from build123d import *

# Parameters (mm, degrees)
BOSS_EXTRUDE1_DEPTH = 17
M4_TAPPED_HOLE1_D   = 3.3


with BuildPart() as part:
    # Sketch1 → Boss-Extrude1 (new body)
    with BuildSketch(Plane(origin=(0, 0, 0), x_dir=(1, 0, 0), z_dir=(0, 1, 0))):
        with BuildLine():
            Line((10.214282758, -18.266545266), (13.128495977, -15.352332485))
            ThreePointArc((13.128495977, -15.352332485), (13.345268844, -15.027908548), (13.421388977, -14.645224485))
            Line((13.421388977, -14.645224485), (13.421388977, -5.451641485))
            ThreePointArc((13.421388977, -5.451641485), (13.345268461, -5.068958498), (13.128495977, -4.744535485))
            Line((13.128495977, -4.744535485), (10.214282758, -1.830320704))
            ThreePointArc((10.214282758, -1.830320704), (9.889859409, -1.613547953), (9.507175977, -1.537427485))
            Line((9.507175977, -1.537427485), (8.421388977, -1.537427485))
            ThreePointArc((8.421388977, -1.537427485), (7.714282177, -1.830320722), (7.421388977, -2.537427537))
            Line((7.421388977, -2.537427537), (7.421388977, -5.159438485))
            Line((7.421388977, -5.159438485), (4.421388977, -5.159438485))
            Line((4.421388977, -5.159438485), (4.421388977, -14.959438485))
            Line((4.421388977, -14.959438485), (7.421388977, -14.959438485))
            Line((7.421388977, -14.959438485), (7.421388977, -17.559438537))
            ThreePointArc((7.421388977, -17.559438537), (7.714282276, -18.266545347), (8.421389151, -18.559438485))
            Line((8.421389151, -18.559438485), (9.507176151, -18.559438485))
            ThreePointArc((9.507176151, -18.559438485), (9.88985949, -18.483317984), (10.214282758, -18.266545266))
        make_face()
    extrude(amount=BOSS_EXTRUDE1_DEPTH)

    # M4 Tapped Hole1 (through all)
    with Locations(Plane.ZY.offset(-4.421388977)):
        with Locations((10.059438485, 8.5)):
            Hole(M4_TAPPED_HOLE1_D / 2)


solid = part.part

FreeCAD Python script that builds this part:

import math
import FreeCAD as App
import Part
import Sketcher
from FreeCAD import Vector

doc = App.newDocument("Part")
body = doc.addObject("PartDesign::Body", "Body")

# Sketch on XZ plane
sketch1 = doc.addObject("Sketcher::SketchObject", "Sketch")
body.addObject(sketch1)
sketch1.AttachmentSupport = (doc.XZ_Plane, [""])
sketch1.MapMode = "FlatFace"
sketch1.addGeometry(Part.LineSegment(Vector(10.2, 18.3, 0), Vector(13.1, 15.4, 0)), False)
sketch1.addGeometry(Part.ArcOfCircle(Part.Circle(Vector(12.4, 14.6, 0), Vector(0, 0, 1), 1), math.radians(0), math.radians(45)), False)
sketch1.addGeometry(Part.LineSegment(Vector(13.4, 14.6, 0), Vector(13.4, 5.5, 0)), False)
sketch1.addGeometry(Part.ArcOfCircle(Part.Circle(Vector(12.4, 5.5, 0), Vector(0, 0, 1), 1), math.radians(-45), math.radians(0)), False)
sketch1.addGeometry(Part.LineSegment(Vector(13.1, 4.7, 0), Vector(10.2, 1.8, 0)), False)
sketch1.addGeometry(Part.ArcOfCircle(Part.Circle(Vector(9.5, 2.5, 0), Vector(0, 0, 1), 1), math.radians(-90), math.radians(-45)), False)
sketch1.addGeometry(Part.LineSegment(Vector(9.5, 1.5, 0), Vector(8.4, 1.5, 0)), False)
sketch1.addGeometry(Part.ArcOfCircle(Part.Circle(Vector(8.4, 2.5, 0), Vector(0, 0, 1), 1), math.radians(180), math.radians(270)), False)
sketch1.addGeometry(Part.LineSegment(Vector(7.4, 2.5, 0), Vector(7.4, 5.2, 0)), False)
sketch1.addGeometry(Part.LineSegment(Vector(7.4, 5.2, 0), Vector(4.4, 5.2, 0)), False)
sketch1.addGeometry(Part.LineSegment(Vector(4.4, 5.2, 0), Vector(4.4, 15, 0)), False)
sketch1.addGeometry(Part.LineSegment(Vector(4.4, 15, 0), Vector(7.4, 15, 0)), False)
sketch1.addGeometry(Part.LineSegment(Vector(7.4, 15, 0), Vector(7.4, 17.6, 0)), False)
sketch1.addGeometry(Part.ArcOfCircle(Part.Circle(Vector(8.4, 17.6, 0), Vector(0, 0, 1), 1), math.radians(90), math.radians(180)), False)
sketch1.addGeometry(Part.LineSegment(Vector(8.4, 18.6, 0), Vector(9.5, 18.6, 0)), False)
sketch1.addGeometry(Part.ArcOfCircle(Part.Circle(Vector(9.5, 17.6, 0), Vector(0, 0, 1), 1), math.radians(45), math.radians(90)), False)
sketch1.addConstraint(Sketcher.Constraint("Tangent", 0, 2, 1, 2))
sketch1.addConstraint(Sketcher.Constraint("Tangent", 1, 1, 2, 1))
sketch1.addConstraint(Sketcher.Constraint("Tangent", 2, 2, 3, 2))
sketch1.addConstraint(Sketcher.Constraint("Tangent", 3, 1, 4, 1))
sketch1.addConstraint(Sketcher.Constraint("Tangent", 4, 2, 5, 2))
sketch1.addConstraint(Sketcher.Constraint("Tangent", 5, 1, 6, 1))
sketch1.addConstraint(Sketcher.Constraint("Tangent", 6, 2, 7, 2))
sketch1.addConstraint(Sketcher.Constraint("Tangent", 7, 1, 8, 1))
sketch1.addConstraint(Sketcher.Constraint("Coincident", 8, 2, 9, 1))
sketch1.addConstraint(Sketcher.Constraint("Coincident", 9, 2, 10, 1))
sketch1.addConstraint(Sketcher.Constraint("Coincident", 10, 2, 11, 1))
sketch1.addConstraint(Sketcher.Constraint("Coincident", 11, 2, 12, 1))
sketch1.addConstraint(Sketcher.Constraint("Tangent", 12, 2, 13, 2))
sketch1.addConstraint(Sketcher.Constraint("Tangent", 13, 1, 14, 1))
sketch1.addConstraint(Sketcher.Constraint("Tangent", 14, 2, 15, 2))
sketch1.addConstraint(Sketcher.Constraint("Tangent", 15, 1, 0, 1))
sketch1.addConstraint(Sketcher.Constraint("Vertical", 2))
sketch1.addConstraint(Sketcher.Constraint("Horizontal", 6))
sketch1.addConstraint(Sketcher.Constraint("Vertical", 8))
sketch1.addConstraint(Sketcher.Constraint("Horizontal", 9))
sketch1.addConstraint(Sketcher.Constraint("Vertical", 10))
sketch1.addConstraint(Sketcher.Constraint("Horizontal", 11))
sketch1.addConstraint(Sketcher.Constraint("Vertical", 12))
sketch1.addConstraint(Sketcher.Constraint("Horizontal", 14))
sketch1.addConstraint(Sketcher.Constraint("Equal", 1, 3))
sketch1.addConstraint(Sketcher.Constraint("Equal", 3, 5))
sketch1.addConstraint(Sketcher.Constraint("Equal", 5, 7))
sketch1.addConstraint(Sketcher.Constraint("Equal", 7, 13))
sketch1.addConstraint(Sketcher.Constraint("Equal", 13, 15))
sketch1.addConstraint(Sketcher.Constraint("Perpendicular", 0, 4))
sketch1.addConstraint(Sketcher.Constraint("Vertical", 7, 3, 13, 3))
sketch1.addConstraint(Sketcher.Constraint("Vertical", 5, 3, 15, 3))
sketch1.addConstraint(Sketcher.Constraint("Vertical", 0, 2, 3, 1))
sketch1.addConstraint(Sketcher.Constraint("Radius", 1, 1.0))
sketch1.addConstraint(Sketcher.Constraint("DistanceX", 9, 2, 9, 1, 3.0))
sketch1.addConstraint(Sketcher.Constraint("DistanceY", 10, 1, 10, 2, 9.8))
sketch1.addConstraint(Sketcher.Constraint("DistanceY", 12, 1, 12, 2, 2.6))
sketch1.addConstraint(Sketcher.Constraint("DistanceX", 7, 3, 3, 3, 4.0))
sketch1.addConstraint(Sketcher.Constraint("DistanceY", 8, 1, 8, 2, 2.622011))
sketch1.addConstraint(Sketcher.Constraint("DistanceY", 5, 3, 1, 3, 12.107798))
sketch1.addConstraint(Sketcher.Constraint("DistanceX", -1, 1, 1, 3, 12.421389))
sketch1.addConstraint(Sketcher.Constraint("DistanceY", -1, 1, 13, 3, 17.559438))
pad1 = doc.addObject("PartDesign::Pad", "Pad")
body.addObject(pad1)
pad1.Profile = sketch1
pad1.Length = 17
pad1.Reversed = True

# Sketch on YZ plane
sketch2 = doc.addObject("Sketcher::SketchObject", "Sketch001")
body.addObject(sketch2)
sketch2.AttachmentSupport = (doc.YZ_Plane, [""])
sketch2.MapMode = "FlatFace"
sketch2.AttachmentOffset = App.Placement(Vector(0, 0, 4.421389), App.Rotation())
sketch2.addGeometry(Part.Circle(Vector(8.5, 10.1, 0), Vector(0, 0, 1), 1.6), False)
sketch2.addConstraint(Sketcher.Constraint("Diameter", 0, 3.3))
sketch2.addConstraint(Sketcher.Constraint("DistanceX", -1, 1, 0, 3, 8.5))
sketch2.addConstraint(Sketcher.Constraint("DistanceY", -1, 1, 0, 3, 10.059438))
doc.recompute()
hole = doc.addObject("PartDesign::Hole", "Hole")
body.addObject(hole)
hole.Profile = sketch2
hole.ThreadType = "None"
hole.Diameter = 3.3
hole.DepthType = "ThroughAll"
hole.Reversed = True

doc.recompute()
